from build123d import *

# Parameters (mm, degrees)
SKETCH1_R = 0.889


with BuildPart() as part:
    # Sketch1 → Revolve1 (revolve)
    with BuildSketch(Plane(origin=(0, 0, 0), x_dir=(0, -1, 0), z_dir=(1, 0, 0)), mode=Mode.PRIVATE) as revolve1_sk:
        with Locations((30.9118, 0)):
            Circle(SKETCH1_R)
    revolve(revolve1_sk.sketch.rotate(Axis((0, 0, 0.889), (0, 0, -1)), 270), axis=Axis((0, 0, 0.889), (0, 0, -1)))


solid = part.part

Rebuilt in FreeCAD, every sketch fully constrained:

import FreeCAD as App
import Part
import Sketcher

V = App.Vector
Q = App.Units.Quantity

doc = App.newDocument("Part")
params = doc.addObject("Spreadsheet::Sheet", "Params")
for row, (alias, value) in enumerate([
    ("sketch1_diameter", "0.07 in"),
    ("revolution_angle", "360 deg"),
], start=1):
    params.set(f"A{row}", alias)
    params.set(f"B{row}", "=" + value)
    params.setAlias(f"B{row}", alias)

body = doc.addObject("PartDesign::Body", "Body")

sketch1 = body.newObject("Sketcher::SketchObject", "Sketch")
sketch1.AttachmentSupport = (doc.getObject("YZ_Plane"), [""])
sketch1.MapMode = "FlatFace"
sketch1.addGeometry(Part.Circle(V(-30.9118, 0, 0), V(0, 0, 1), 0.889), False)
sketch1.addConstraint(Sketcher.Constraint("PointOnObject", 0, 3, -1))
sketch1.addConstraint(Sketcher.Constraint("Diameter", 0, Q("0.07 in")))
sketch1.addConstraint(Sketcher.Constraint("DistanceX", 0, 3, -1, 1, Q("1.217 in")))
sketch1.setExpression("Constraints[1]", "Params.sketch1_diameter")
revolution = body.newObject("PartDesign::Revolution", "Revolution")
revolution.Profile = sketch1
revolution.ReferenceAxis = (sketch1, ["V_Axis"])
revolution.setExpression("Angle", "Params.revolution_angle")

doc.recompute()
